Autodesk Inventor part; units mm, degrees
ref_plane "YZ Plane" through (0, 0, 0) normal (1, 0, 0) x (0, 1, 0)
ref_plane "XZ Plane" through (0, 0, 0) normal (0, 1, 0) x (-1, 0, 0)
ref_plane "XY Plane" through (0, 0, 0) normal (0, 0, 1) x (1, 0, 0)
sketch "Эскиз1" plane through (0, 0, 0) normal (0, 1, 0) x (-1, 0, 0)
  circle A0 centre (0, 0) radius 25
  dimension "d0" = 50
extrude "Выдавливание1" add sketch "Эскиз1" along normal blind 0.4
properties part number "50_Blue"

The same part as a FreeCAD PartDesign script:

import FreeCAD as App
import Part
import Sketcher

V = App.Vector

doc = App.newDocument("Part")
body = doc.addObject("PartDesign::Body", "Body")

sketch1 = body.newObject("Sketcher::SketchObject", "Sketch")
sketch1.AttachmentSupport = (doc.getObject("XZ_Plane"), [""])
sketch1.MapMode = "FlatFace"
sketch1.addGeometry(Part.Circle(V(0, 0, 0), V(0, 0, 1), 25), False)
sketch1.addConstraint(Sketcher.Constraint("Coincident", 0, 3, -1, 1))
sketch1.addConstraint(Sketcher.Constraint("Diameter", 0, 50.0))
pad1 = body.newObject("PartDesign::Pad", "Pad")
pad1.Profile = sketch1
pad1.Length = 0.4
pad1.Reversed = True

doc.recompute()
